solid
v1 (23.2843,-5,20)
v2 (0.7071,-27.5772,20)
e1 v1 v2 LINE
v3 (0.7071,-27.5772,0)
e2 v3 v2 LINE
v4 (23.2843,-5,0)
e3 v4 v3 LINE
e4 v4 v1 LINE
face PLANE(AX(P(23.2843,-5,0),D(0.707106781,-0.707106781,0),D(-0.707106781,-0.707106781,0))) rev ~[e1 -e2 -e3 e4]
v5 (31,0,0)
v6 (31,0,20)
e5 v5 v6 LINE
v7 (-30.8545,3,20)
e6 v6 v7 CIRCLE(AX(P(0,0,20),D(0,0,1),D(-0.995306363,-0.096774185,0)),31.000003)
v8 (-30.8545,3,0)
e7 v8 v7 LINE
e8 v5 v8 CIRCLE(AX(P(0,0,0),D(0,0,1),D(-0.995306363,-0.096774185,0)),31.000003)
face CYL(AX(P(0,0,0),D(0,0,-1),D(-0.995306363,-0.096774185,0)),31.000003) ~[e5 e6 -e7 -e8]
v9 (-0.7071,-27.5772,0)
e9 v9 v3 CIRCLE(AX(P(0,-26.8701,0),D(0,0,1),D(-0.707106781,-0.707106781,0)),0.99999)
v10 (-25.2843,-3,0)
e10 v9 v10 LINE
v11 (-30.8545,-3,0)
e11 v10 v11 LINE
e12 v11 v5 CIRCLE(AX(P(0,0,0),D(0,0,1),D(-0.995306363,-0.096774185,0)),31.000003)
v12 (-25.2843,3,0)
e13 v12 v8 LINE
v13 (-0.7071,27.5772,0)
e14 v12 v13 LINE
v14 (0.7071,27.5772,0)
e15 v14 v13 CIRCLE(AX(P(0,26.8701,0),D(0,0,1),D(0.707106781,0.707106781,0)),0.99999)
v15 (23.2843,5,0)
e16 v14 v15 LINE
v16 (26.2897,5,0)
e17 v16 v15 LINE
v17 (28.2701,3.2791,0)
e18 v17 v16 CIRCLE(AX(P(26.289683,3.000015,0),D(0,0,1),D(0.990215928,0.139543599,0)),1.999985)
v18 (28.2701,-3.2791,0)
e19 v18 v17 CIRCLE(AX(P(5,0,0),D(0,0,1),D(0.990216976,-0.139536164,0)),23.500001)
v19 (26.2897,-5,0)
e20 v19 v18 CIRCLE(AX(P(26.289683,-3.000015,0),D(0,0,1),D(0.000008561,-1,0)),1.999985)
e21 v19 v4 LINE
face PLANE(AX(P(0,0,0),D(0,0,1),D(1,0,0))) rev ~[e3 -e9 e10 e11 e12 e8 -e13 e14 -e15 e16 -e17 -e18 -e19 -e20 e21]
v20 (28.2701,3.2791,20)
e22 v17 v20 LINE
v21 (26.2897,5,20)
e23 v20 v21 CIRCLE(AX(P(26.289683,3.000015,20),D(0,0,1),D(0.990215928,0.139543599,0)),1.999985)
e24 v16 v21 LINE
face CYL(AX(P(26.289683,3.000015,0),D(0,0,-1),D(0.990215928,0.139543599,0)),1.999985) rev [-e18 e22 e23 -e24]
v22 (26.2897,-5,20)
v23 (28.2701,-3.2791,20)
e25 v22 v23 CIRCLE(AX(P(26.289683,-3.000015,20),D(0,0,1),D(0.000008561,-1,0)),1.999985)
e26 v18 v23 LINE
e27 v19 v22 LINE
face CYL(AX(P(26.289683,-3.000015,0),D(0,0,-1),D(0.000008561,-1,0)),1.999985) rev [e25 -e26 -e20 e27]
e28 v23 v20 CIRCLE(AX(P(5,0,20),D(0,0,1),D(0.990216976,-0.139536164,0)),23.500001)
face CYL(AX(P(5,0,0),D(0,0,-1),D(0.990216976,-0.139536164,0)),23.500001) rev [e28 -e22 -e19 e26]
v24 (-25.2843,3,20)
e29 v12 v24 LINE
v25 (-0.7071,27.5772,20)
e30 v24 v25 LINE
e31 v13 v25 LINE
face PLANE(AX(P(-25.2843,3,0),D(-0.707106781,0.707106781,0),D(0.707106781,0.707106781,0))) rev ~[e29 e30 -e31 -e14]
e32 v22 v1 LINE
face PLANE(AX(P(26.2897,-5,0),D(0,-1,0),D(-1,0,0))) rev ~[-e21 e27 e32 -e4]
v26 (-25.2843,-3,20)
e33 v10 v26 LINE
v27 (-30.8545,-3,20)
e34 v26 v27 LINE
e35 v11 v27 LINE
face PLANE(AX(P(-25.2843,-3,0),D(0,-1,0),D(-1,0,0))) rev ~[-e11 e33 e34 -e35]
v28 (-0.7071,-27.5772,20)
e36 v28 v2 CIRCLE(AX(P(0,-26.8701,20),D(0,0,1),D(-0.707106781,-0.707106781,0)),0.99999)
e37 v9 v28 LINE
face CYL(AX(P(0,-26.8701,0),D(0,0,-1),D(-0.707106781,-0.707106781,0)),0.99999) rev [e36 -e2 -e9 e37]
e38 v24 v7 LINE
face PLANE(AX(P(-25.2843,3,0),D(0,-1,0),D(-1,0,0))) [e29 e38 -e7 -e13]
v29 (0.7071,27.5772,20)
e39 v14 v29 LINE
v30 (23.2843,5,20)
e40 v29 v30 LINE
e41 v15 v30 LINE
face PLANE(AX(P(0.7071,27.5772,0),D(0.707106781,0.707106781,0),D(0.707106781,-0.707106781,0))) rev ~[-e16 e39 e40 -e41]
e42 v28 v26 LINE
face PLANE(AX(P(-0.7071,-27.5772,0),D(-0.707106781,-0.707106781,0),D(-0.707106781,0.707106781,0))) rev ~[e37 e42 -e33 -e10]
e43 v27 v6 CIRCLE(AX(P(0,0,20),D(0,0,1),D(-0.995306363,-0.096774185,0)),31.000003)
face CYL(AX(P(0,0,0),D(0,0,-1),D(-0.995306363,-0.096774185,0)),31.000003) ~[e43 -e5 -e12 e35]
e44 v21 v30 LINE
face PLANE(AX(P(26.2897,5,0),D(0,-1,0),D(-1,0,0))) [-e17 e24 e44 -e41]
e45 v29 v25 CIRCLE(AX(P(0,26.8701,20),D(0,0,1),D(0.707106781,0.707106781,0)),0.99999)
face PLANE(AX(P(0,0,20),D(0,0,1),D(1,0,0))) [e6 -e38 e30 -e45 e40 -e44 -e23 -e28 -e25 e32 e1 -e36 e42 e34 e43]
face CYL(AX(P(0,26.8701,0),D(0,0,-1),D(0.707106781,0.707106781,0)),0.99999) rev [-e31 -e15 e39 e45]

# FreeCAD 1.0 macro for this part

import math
import FreeCAD as App
import Part
import Sketcher
from FreeCAD import Vector

doc = App.newDocument("Part")
body = doc.addObject("PartDesign::Body", "Body")

sketch1 = body.newObject("Sketcher::SketchObject", "Sketch")
sketch1.AttachmentSupport = (doc.getObject("XY_Plane"), [""])
sketch1.MapMode = "FlatFace"
sketch1.addGeometry(Part.ArcOfCircle(Part.Circle(Vector(0, 26.8701, 0), Vector(0, 0, 1), 0.99999), math.radians(45), math.radians(135)), False)
sketch1.addGeometry(Part.LineSegment(Vector(0.7071, 27.5772, 0), Vector(23.2843, 5, 0)), False)
sketch1.addGeometry(Part.LineSegment(Vector(23.2843, 5, 0), Vector(26.2897, 5, 0)), False)
sketch1.addGeometry(Part.ArcOfCircle(Part.Circle(Vector(26.2897, 3, 0), Vector(0, 0, 1), 1.99997), math.radians(8.021928), math.radians(90)), False)
sketch1.addGeometry(Part.ArcOfCircle(Part.Circle(Vector(5, 0, 0), Vector(0, 0, 1), 23.500001), math.radians(-8.021007), math.radians(8.021007)), False)
sketch1.addGeometry(Part.ArcOfCircle(Part.Circle(Vector(26.2897, -3, 0), Vector(0, 0, 1), 2), math.radians(-90), math.radians(-8.021928)), False)
sketch1.addGeometry(Part.LineSegment(Vector(26.2897, -5, 0), Vector(23.2843, -5, 0)), False)
sketch1.addGeometry(Part.LineSegment(Vector(23.2843, -5, 0), Vector(0.7071, -27.5772, 0)), False)
sketch1.addGeometry(Part.ArcOfCircle(Part.Circle(Vector(0, -26.8701, 0), Vector(0, 0, 1), 0.99999), math.radians(-135), math.radians(-45)), False)
sketch1.addGeometry(Part.LineSegment(Vector(-0.7071, -27.5772, 0), Vector(-25.2843, -3, 0)), False)
sketch1.addGeometry(Part.LineSegment(Vector(-25.2843, -3, 0), Vector(-30.8545, -3, 0)), False)
sketch1.addGeometry(Part.ArcOfCircle(Part.Circle(Vector(0, 0, 0), Vector(0, 0, 1), 31.000003), math.radians(-174.446556), math.radians(174.446556)), False)
sketch1.addGeometry(Part.LineSegment(Vector(-30.8545, 3, 0), Vector(-25.2843, 3, 0)), False)
sketch1.addGeometry(Part.LineSegment(Vector(-25.2843, 3, 0), Vector(-0.7071, 27.5772, 0)), False)
sketch1.addConstraint(Sketcher.Constraint("Tangent", 0, 1, 1, 1))
sketch1.addConstraint(Sketcher.Constraint("Coincident", 1, 2, 2, 1))
sketch1.addConstraint(Sketcher.Constraint("Tangent", 2, 2, 3, 2))
sketch1.addConstraint(Sketcher.Constraint("Tangent", 3, 1, 4, 2))
sketch1.addConstraint(Sketcher.Constraint("Tangent", 4, 1, 5, 2))
sketch1.addConstraint(Sketcher.Constraint("Tangent", 5, 1, 6, 1))
sketch1.addConstraint(Sketcher.Constraint("Coincident", 6, 2, 7, 1))
sketch1.addConstraint(Sketcher.Constraint("Tangent", 7, 2, 8, 2))
sketch1.addConstraint(Sketcher.Constraint("Tangent", 8, 1, 9, 1))
sketch1.addConstraint(Sketcher.Constraint("Coincident", 9, 2, 10, 1))
sketch1.addConstraint(Sketcher.Constraint("Coincident", 10, 2, 11, 1))
sketch1.addConstraint(Sketcher.Constraint("Coincident", 11, 2, 12, 1))
sketch1.addConstraint(Sketcher.Constraint("Coincident", 12, 2, 13, 1))
sketch1.addConstraint(Sketcher.Constraint("Tangent", 13, 2, 0, 2))
sketch1.addConstraint(Sketcher.Constraint("Horizontal", 2))
sketch1.addConstraint(Sketcher.Constraint("Horizontal", 6))
sketch1.addConstraint(Sketcher.Constraint("Horizontal", 10))
sketch1.addConstraint(Sketcher.Constraint("Horizontal", 12))
sketch1.addConstraint(Sketcher.Constraint("Coincident", 11, 3, -1, 1))
sketch1.addConstraint(Sketcher.Constraint("Equal", 3, 5))
sketch1.addConstraint(Sketcher.Constraint("Equal", 0, 8))
sketch1.addConstraint(Sketcher.Constraint("Symmetric", 0, 3, 8, 3, -1, 1))
sketch1.addConstraint(Sketcher.Constraint("Symmetric", 7, 2, 8, 1, -2))
sketch1.addConstraint(Sketcher.Constraint("Symmetric", 3, 3, 5, 3, -1))
sketch1.addConstraint(Sketcher.Constraint("Symmetric", 9, 2, 12, 2, -1))
sketch1.addConstraint(Sketcher.Constraint("Perpendicular", 1, 7))
sketch1.addConstraint(Sketcher.Constraint("Perpendicular", 7, 9))
sketch1.addConstraint(Sketcher.Constraint("Horizontal", 5, 3, 9, 2))
sketch1.addConstraint(Sketcher.Constraint("Radius", 0, 1.0))
sketch1.addConstraint(Sketcher.Constraint("Radius", 3, 2.0))
sketch1.addConstraint(Sketcher.Constraint("Radius", 11, 31.0))
sketch1.addConstraint(Sketcher.Constraint("Radius", 4, 23.5))
sketch1.addConstraint(Sketcher.Constraint("DistanceY", -1, 1, 3, 3, 3.0))
sketch1.addConstraint(Sketcher.Constraint("DistanceX", -1, 1, 4, 3, 5.0))
sketch1.addConstraint(Sketcher.Constraint("DistanceY", -1, 1, 0, 3, 26.87))
pad1 = body.newObject("PartDesign::Pad", "Pad")
pad1.Profile = sketch1
pad1.Length = 20

doc.recompute()
